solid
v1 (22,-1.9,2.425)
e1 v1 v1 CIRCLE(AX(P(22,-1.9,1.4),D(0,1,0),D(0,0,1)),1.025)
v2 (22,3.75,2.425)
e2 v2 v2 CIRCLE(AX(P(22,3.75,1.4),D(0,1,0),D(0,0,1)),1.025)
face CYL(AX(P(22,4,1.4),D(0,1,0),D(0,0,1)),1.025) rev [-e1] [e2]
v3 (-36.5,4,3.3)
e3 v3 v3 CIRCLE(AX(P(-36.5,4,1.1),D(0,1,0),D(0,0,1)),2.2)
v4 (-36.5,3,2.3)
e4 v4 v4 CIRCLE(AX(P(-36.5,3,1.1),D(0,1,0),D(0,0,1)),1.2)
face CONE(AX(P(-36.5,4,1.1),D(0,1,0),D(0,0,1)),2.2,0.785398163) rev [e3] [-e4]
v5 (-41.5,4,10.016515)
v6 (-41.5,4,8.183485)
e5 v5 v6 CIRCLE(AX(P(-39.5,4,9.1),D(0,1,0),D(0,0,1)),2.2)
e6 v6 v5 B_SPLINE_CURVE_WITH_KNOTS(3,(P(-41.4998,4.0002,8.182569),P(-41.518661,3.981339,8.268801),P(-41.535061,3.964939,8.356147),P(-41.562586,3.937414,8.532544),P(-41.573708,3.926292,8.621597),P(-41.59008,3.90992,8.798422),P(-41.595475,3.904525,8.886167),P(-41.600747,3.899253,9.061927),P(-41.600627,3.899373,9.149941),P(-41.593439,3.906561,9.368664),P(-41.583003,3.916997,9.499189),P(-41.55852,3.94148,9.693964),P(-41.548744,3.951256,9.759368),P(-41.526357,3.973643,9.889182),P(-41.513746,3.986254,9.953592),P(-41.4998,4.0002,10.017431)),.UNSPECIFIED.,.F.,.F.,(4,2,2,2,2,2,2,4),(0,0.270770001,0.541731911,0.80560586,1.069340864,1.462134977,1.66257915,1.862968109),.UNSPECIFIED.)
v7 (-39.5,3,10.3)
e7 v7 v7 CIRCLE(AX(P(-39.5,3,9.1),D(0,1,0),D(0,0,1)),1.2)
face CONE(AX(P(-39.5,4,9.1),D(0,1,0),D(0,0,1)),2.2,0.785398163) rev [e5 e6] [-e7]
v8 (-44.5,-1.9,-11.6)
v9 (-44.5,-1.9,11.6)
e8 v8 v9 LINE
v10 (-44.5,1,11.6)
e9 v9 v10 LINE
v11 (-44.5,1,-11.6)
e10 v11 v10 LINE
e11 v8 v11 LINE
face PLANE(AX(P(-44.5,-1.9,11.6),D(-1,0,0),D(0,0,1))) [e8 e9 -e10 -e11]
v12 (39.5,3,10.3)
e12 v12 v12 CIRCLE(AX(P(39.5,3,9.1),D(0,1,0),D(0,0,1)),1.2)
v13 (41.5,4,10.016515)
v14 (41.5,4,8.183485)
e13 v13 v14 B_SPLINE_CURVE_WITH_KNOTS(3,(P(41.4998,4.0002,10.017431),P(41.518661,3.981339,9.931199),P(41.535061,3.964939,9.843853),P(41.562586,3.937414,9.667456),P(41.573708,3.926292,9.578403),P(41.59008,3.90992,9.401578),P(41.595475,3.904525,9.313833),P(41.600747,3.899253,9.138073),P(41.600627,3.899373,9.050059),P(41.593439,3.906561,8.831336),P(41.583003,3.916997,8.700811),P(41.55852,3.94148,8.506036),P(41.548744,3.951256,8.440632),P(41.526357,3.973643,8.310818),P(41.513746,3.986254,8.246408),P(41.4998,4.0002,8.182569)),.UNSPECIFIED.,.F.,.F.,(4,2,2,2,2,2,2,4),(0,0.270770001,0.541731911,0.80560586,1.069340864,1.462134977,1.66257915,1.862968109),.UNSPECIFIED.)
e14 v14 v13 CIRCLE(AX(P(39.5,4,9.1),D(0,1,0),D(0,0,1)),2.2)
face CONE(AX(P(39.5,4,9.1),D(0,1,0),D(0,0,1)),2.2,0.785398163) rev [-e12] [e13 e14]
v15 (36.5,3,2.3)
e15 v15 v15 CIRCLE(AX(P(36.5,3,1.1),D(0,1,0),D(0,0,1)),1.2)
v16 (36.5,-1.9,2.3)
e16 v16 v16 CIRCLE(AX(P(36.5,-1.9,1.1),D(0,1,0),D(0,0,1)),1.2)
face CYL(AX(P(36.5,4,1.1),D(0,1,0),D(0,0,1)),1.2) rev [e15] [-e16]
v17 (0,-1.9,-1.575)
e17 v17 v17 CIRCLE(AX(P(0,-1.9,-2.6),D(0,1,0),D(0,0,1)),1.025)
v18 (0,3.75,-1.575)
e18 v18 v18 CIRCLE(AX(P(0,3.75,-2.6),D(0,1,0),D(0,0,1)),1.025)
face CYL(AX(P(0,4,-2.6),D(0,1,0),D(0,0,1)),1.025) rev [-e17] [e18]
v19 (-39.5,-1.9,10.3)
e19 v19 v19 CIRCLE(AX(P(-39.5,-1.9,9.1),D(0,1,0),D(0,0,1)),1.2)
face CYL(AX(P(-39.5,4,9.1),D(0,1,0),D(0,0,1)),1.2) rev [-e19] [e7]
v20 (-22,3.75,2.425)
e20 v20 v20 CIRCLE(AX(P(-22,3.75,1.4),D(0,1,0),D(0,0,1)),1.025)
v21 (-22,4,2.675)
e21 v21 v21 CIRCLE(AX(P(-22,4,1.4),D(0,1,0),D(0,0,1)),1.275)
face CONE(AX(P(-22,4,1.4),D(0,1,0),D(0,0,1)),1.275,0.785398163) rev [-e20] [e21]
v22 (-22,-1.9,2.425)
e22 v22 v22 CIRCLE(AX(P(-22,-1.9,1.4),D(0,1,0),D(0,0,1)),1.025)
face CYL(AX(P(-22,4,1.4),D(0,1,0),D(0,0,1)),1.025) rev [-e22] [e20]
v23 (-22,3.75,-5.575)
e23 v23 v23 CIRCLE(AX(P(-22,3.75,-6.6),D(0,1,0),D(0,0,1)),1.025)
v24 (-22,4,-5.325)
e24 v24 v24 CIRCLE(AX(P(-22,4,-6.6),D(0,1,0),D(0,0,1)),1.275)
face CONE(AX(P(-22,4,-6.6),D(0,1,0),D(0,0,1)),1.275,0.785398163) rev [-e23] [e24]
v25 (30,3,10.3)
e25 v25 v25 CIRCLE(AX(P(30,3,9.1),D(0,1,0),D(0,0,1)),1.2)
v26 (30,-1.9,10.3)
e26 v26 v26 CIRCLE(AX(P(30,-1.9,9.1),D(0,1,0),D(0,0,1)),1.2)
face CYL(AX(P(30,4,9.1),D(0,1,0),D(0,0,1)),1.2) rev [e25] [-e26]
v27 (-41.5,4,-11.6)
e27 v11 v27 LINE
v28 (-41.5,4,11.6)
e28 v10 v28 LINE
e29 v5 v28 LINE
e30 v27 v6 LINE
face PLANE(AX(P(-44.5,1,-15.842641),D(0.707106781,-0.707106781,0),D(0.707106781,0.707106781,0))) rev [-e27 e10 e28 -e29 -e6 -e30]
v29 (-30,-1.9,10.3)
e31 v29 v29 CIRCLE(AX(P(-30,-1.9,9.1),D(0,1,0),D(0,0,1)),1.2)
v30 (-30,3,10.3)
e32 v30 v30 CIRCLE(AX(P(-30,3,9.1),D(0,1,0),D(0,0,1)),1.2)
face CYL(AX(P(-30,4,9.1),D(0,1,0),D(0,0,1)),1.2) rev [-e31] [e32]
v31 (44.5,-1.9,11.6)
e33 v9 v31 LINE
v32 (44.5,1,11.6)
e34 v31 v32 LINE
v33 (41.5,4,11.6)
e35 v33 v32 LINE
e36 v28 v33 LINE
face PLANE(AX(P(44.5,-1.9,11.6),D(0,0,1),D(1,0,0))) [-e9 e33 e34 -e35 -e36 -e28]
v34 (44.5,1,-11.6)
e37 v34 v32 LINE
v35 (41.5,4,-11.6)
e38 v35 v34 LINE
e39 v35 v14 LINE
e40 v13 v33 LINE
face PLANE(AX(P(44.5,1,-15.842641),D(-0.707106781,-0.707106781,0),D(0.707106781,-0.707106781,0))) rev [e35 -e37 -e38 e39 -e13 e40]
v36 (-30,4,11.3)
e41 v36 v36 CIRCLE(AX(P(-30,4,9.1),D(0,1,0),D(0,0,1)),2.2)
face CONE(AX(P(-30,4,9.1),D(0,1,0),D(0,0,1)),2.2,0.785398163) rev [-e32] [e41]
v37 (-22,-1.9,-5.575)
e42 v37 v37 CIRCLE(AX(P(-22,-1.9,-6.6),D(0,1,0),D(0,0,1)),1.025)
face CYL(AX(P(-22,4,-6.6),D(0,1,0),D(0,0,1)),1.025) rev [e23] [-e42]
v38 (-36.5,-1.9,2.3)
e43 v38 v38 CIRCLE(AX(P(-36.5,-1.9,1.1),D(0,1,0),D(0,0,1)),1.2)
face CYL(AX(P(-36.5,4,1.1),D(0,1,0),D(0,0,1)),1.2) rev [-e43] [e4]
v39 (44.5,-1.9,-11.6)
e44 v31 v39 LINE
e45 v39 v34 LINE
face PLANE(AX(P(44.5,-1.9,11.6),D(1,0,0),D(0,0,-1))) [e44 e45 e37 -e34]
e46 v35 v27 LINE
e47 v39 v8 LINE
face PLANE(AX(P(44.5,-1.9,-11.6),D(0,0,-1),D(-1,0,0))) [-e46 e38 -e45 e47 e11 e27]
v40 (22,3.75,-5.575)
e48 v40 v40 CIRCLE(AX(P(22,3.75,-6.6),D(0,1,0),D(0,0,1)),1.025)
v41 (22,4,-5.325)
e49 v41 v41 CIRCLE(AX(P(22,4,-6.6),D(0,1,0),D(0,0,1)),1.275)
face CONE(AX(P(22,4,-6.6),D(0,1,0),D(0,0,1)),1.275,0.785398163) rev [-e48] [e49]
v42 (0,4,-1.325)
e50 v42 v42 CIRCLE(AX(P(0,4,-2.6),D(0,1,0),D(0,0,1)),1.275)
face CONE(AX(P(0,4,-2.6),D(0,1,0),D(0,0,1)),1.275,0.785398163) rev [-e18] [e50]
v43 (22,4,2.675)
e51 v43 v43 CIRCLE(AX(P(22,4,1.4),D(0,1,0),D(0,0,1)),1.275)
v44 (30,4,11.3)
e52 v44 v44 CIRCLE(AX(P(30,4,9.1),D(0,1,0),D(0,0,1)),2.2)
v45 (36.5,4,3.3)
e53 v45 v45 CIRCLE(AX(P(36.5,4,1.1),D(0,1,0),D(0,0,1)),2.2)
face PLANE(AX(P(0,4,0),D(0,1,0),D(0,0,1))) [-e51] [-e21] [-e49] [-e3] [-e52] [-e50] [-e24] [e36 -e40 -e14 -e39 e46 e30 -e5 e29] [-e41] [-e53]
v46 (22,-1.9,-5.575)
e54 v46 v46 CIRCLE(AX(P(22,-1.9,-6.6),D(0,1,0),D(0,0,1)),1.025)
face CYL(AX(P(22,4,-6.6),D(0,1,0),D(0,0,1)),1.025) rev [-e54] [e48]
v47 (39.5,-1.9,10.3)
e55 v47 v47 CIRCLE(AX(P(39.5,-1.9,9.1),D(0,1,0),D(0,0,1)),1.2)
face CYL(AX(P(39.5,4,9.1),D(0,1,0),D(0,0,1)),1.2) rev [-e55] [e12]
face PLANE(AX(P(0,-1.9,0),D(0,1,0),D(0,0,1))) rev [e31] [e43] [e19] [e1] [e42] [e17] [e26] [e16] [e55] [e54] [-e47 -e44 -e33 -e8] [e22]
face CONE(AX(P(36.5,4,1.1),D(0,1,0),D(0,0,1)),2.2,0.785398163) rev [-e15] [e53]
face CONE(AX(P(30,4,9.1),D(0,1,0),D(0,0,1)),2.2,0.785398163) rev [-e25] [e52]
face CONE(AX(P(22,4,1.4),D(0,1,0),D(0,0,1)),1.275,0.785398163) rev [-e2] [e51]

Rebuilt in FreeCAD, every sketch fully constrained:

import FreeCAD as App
import Part
import Sketcher
from FreeCAD import Vector
Q = App.Units.Quantity

doc = App.newDocument("Part")
body = doc.addObject("PartDesign::Body", "Body")

# Sketch on XZ plane
sketch1 = body.newObject("Sketcher::SketchObject", "Sketch")
sketch1.AttachmentSupport = (doc.getObject("XZ_Plane"), [""])
sketch1.MapMode = "FlatFace"
sketch1.addGeometry([
    Part.LineSegment(Vector(-44, -12, 0), Vector(-44, 12, 0)),
    Part.LineSegment(Vector(-44, 12, 0), Vector(44, 12, 0)),
    Part.LineSegment(Vector(44, 12, 0), Vector(44, -12, 0)),
    Part.LineSegment(Vector(44, -12, 0), Vector(-44, -12, 0)),
], False)
sketch1.addConstraint([
    Sketcher.Constraint("Coincident", 0, 2, 1, 1),
    Sketcher.Constraint("Coincident", 1, 2, 2, 1),
    Sketcher.Constraint("Coincident", 2, 2, 3, 1),
    Sketcher.Constraint("Coincident", 3, 2, 0, 1),
    Sketcher.Constraint("Vertical", 0),
    Sketcher.Constraint("Horizontal", 1),
    Sketcher.Constraint("Vertical", 2),
    Sketcher.Constraint("Horizontal", 3),
    Sketcher.Constraint("Symmetric", 0, 2, 2, 2, -1, 1),
    Sketcher.Constraint("DistanceX", 1, 1, 1, 2, Q("89 mm")),
    Sketcher.Constraint("DistanceY", 0, 1, 0, 2, Q("23.2 mm")),
])
pad1 = body.newObject("PartDesign::Pad", "Pad")
pad1.Profile = sketch1
pad1.Type = "TwoLengths"
pad1.Length = 4
pad1.Length2 = 1.9
pad1.Reversed = True

# Sketch on XZ plane
sketch2 = body.newObject("Sketcher::SketchObject", "Sketch001")
sketch2.AttachmentSupport = (doc.getObject("XZ_Plane"), [""])
sketch2.MapMode = "FlatFace"
sketch2.AttachmentOffset = App.Placement(Vector(0, 0, -4), App.Rotation())
sketch2.addGeometry([
    Part.Circle(Vector(-22, -6.6, 0), Vector(0, 0, 1), 1),  # 0
    Part.Circle(Vector(-22, 1.4, 0), Vector(0, 0, 1), 1),  # 1
    Part.Circle(Vector(22, 1.4, 0), Vector(0, 0, 1), 1),  # 2
    Part.Circle(Vector(22, -6.6, 0), Vector(0, 0, 1), 1),  # 3
    Part.Circle(Vector(0, -2.6, 0), Vector(0, 0, 1), 1),  # 4
], False)
sketch2.addConstraint([
    Sketcher.Constraint("Equal", 0, 1),
    Sketcher.Constraint("Equal", 1, 2),
    Sketcher.Constraint("Equal", 2, 3),
    Sketcher.Constraint("Equal", 3, 4),
    Sketcher.Constraint("Symmetric", 1, 3, 2, 3, -2),
    Sketcher.Constraint("Symmetric", 0, 3, 3, 3, -2),
    Sketcher.Constraint("PointOnObject", 4, 3, -2),
    Sketcher.Constraint("Vertical", 0, 3, 1, 3),
    Sketcher.Constraint("Diameter", 0, Q("2.05 mm")),
    Sketcher.Constraint("DistanceX", 0, 3, -1, 1, Q("22 mm")),
    Sketcher.Constraint("DistanceY", 0, 3, 1, 3, Q("8 mm")),
    Sketcher.Constraint("DistanceY", 0, 3, 4, 3, Q("4 mm")),
    Sketcher.Constraint("DistanceY", 0, 3, -1, 1, Q("6.6 mm")),
])
doc.recompute()
hole = body.newObject("PartDesign::Hole", "Hole")
hole.Profile = sketch2
hole.ThreadType = "None"
hole.Diameter = 2.05
hole.DepthType = "ThroughAll"
hole.HoleCutType = "Countersink"
hole.HoleCutDiameter = 2.55
hole.HoleCutCountersinkAngle = 90
hole.Reversed = True

# Sketch on XZ plane
sketch3 = body.newObject("Sketcher::SketchObject", "Sketch002")
sketch3.AttachmentSupport = (doc.getObject("XZ_Plane"), [""])
sketch3.MapMode = "FlatFace"
sketch3.AttachmentOffset = App.Placement(Vector(0, 0, -4), App.Rotation())
sketch3.addGeometry([
    Part.Circle(Vector(-36.5, 1.1, 0), Vector(0, 0, 1), 1.2),  # 0
    Part.Circle(Vector(-39.5, 9.1, 0), Vector(0, 0, 1), 1.2),  # 1
    Part.Circle(Vector(-30, 9.1, 0), Vector(0, 0, 1), 1.2),  # 2
    Part.Circle(Vector(30, 9.1, 0), Vector(0, 0, 1), 1.2),  # 3
    Part.Circle(Vector(39.5, 9.1, 0), Vector(0, 0, 1), 1.2),  # 4
    Part.Circle(Vector(36.5, 1.1, 0), Vector(0, 0, 1), 1.2),  # 5
], False)
sketch3.addConstraint([
    Sketcher.Constraint("Equal", 0, 1),
    Sketcher.Constraint("Equal", 1, 2),
    Sketcher.Constraint("Equal", 2, 3),
    Sketcher.Constraint("Equal", 3, 4),
    Sketcher.Constraint("Equal", 4, 5),
    Sketcher.Constraint("Symmetric", 2, 3, 3, 3, -2),
    Sketcher.Constraint("Symmetric", 1, 3, 4, 3, -2),
    Sketcher.Constraint("Symmetric", 0, 3, 5, 3, -2),
    Sketcher.Constraint("Horizontal", 1, 3, 2, 3),
    Sketcher.Constraint("Diameter", 0, Q("2.4 mm")),
    Sketcher.Constraint("DistanceX", 2, 3, -1, 1, Q("30 mm")),
    Sketcher.Constraint("DistanceX", 1, 3, 0, 3, Q("3 mm")),
    Sketcher.Constraint("DistanceY", 0, 3, 1, 3, Q("8 mm")),
    Sketcher.Constraint("DistanceX", 0, 3, 4, 3, Q("76 mm")),
    Sketcher.Constraint("DistanceY", -1, 1, 0, 3, Q("1.1 mm")),
])
doc.recompute()
hole2 = body.newObject("PartDesign::Hole", "Hole001")
hole2.Profile = sketch3
hole2.ThreadType = "None"
hole2.Diameter = 2.4
hole2.DepthType = "Dimension"
hole2.Depth = 6.45
hole2.DrillPoint = "Angled"
hole2.DrillPointAngle = 118
hole2.HoleCutType = "Countersink"
hole2.HoleCutDiameter = 4.4
hole2.HoleCutCountersinkAngle = 90
hole2.Reversed = True

# Sketch on XY plane
sketch4 = body.newObject("Sketcher::SketchObject", "Sketch003")
sketch4.AttachmentSupport = (doc.getObject("XY_Plane"), [""])
sketch4.MapMode = "FlatFace"
sketch4.AttachmentOffset = App.Placement(Vector(0, 0, 11.6), App.Rotation())
sketch4.addGeometry([
    Part.LineSegment(Vector(44.5, 4, 0), Vector(41.5, 4, 0)),  # 0
    Part.LineSegment(Vector(41.5, 4, 0), Vector(44.5, 1, 0)),  # 1
    Part.LineSegment(Vector(44.5, 1, 0), Vector(44.5, 4, 0)),  # 2
    Part.LineSegment(Vector(-44.5, 4, 0), Vector(-44.5, 1, 0)),  # 3
    Part.LineSegment(Vector(-44.5, 1, 0), Vector(-41.5, 4, 0)),  # 4
    Part.LineSegment(Vector(-41.5, 4, 0), Vector(-44.5, 4, 0)),  # 5
], False)
sketch4.addConstraint([
    Sketcher.Constraint("Coincident", 0, 2, 1, 1),
    Sketcher.Constraint("Coincident", 1, 2, 2, 1),
    Sketcher.Constraint("Coincident", 2, 2, 0, 1),
    Sketcher.Constraint("Coincident", 3, 2, 4, 1),
    Sketcher.Constraint("Coincident", 4, 2, 5, 1),
    Sketcher.Constraint("Coincident", 5, 2, 3, 1),
    Sketcher.Constraint("Horizontal", 0),
    Sketcher.Constraint("Vertical", 2),
    Sketcher.Constraint("Vertical", 3),
    Sketcher.Constraint("Horizontal", 5),
    Sketcher.Constraint("Symmetric", 1, 2, 3, 2, -2),
    Sketcher.Constraint("Symmetric", 0, 2, 4, 2, -2),
    Sketcher.Constraint("Perpendicular", 1, 4),
    Sketcher.Constraint("DistanceX", 0, 2, 0, 1, Q("3 mm")),
    Sketcher.Constraint("DistanceY", -1, 1, 0, 2, Q("4 mm")),
    Sketcher.Constraint("DistanceX", 3, 2, 0, 2, Q("86 mm")),
])
pocket1 = body.newObject("PartDesign::Pocket", "Pocket")
pocket1.Profile = sketch4
pocket1.Length = 23.2

doc.recompute()
